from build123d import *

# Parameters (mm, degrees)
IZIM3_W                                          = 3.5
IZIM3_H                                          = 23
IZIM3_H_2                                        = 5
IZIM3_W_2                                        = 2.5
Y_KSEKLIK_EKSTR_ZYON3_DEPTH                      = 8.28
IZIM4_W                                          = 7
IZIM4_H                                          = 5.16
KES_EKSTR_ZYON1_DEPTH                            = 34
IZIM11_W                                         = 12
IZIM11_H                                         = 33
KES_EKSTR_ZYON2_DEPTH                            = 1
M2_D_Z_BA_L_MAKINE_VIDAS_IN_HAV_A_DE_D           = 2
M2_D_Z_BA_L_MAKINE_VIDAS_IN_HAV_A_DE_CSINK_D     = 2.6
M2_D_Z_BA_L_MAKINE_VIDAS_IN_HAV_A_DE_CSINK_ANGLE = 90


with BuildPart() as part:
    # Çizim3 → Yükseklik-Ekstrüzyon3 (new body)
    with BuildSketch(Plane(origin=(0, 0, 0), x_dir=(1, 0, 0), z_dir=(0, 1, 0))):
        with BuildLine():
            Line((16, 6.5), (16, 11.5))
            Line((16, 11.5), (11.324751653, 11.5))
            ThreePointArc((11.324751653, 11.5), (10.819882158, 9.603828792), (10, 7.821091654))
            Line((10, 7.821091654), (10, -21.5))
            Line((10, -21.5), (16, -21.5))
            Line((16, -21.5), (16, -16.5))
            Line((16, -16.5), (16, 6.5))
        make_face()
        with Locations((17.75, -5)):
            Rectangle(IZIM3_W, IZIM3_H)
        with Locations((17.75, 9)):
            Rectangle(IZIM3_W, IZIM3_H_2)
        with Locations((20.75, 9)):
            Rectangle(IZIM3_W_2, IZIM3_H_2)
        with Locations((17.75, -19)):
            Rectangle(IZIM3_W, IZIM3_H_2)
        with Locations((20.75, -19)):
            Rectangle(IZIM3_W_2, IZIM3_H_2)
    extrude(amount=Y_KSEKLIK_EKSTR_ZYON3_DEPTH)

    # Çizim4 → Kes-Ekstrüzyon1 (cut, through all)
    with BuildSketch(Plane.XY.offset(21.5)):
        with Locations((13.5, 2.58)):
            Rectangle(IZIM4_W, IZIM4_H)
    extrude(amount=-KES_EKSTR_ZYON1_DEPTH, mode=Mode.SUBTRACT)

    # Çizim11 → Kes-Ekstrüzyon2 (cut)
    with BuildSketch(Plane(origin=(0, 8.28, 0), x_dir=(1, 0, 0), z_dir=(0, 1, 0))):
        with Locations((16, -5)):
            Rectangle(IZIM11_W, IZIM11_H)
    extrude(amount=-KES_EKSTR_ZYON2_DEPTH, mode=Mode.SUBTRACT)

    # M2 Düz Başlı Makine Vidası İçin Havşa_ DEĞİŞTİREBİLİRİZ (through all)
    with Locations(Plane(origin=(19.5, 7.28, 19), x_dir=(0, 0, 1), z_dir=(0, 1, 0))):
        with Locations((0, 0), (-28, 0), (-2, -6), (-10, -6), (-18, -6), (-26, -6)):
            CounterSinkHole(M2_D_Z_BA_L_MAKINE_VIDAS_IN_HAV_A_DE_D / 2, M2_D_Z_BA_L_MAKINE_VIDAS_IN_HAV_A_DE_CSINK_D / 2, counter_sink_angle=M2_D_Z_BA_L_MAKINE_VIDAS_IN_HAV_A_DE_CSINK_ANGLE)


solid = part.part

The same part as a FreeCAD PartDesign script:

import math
import FreeCAD as App
import Part
import Sketcher
from FreeCAD import Vector
Q = App.Units.Quantity


def add_polygon(sketch, points):
    """Adds a closed chain of lines whose ends are joined by coincident constraints."""
    first, n = sketch.GeometryCount, len(points)
    for a, b in zip(points, points[1:] + points[:1]):
        sketch.addGeometry(Part.LineSegment(App.Vector(*a, 0), App.Vector(*b, 0)), False)
    for i in range(n):
        sketch.addConstraint(Sketcher.Constraint("Coincident", first + i, 2, first + (i + 1) % n, 1))

doc = App.newDocument("Part")
params = doc.addObject("Spreadsheet::Sheet", "Params")
for row, (alias, value) in enumerate([
    ("sketch1_radius", "11.5 mm"),
    ("sketch1_width", "12 mm"),
    ("sketch1_height", "5 mm"),
    ("sketch1_height2", "23 mm"),
    ("sketch1_width2", "2.5 mm"),
    ("pad1_length", "8.28 mm"),
    ("sketch2_width", "7 mm"),
    ("sketch2_height", "5.16 mm"),
    ("sketch3_width", "12 mm"),
    ("sketch3_height", "33 mm"),
    ("pocket2_length", "1 mm"),
    ("sketch4_diameter", "2 mm"),
    ("hole_diameter", "2 mm"),
    ("hole_csink_diameter", "2.6 mm"),
], start=1):
    params.set(f"A{row}", alias)
    params.set(f"B{row}", "=" + value)
    params.setAlias(f"B{row}", alias)

body = doc.addObject("PartDesign::Body", "Body")

# Sketch on XZ plane
sketch1 = body.newObject("Sketcher::SketchObject", "Sketch")
sketch1.AttachmentSupport = (doc.getObject("XZ_Plane"), [""])
sketch1.MapMode = "FlatFace"
sketch1.addGeometry([
    Part.ArcOfCircle(Part.Circle(Vector(0, -13.5, 0), Vector(0, 0, 1), 11.5), math.radians(10.01541), math.radians(29.591846)),  # 0
    Part.LineSegment(Vector(10, -7.821092, 0), Vector(10, 21.5, 0)),  # 1
    Part.LineSegment(Vector(10, 21.5, 0), Vector(22, 21.5, 0)),  # 2
    Part.LineSegment(Vector(22, 21.5, 0), Vector(22, 16.5, 0)),  # 3
    Part.LineSegment(Vector(22, 16.5, 0), Vector(19.5, 16.5, 0)),  # 4
    Part.LineSegment(Vector(19.5, 16.5, 0), Vector(19.5, -6.5, 0)),  # 5
    Part.LineSegment(Vector(19.5, -6.5, 0), Vector(22, -6.5, 0)),  # 6
    Part.LineSegment(Vector(22, -6.5, 0), Vector(22, -11.5, 0)),  # 7
    Part.LineSegment(Vector(22, -11.5, 0), Vector(11.324752, -11.5, 0)),  # 8
], False)
sketch1.addConstraint([
    Sketcher.Constraint("Coincident", 0, 2, 1, 1),
    Sketcher.Constraint("Coincident", 1, 2, 2, 1),
    Sketcher.Constraint("Coincident", 2, 2, 3, 1),
    Sketcher.Constraint("Coincident", 3, 2, 4, 1),
    Sketcher.Constraint("Coincident", 4, 2, 5, 1),
    Sketcher.Constraint("Coincident", 5, 2, 6, 1),
    Sketcher.Constraint("Coincident", 6, 2, 7, 1),
    Sketcher.Constraint("Coincident", 7, 2, 8, 1),
    Sketcher.Constraint("Coincident", 8, 2, 0, 1),
    Sketcher.Constraint("Vertical", 1),
    Sketcher.Constraint("Horizontal", 2),
    Sketcher.Constraint("Vertical", 3),
    Sketcher.Constraint("Horizontal", 4),
    Sketcher.Constraint("Vertical", 5),
    Sketcher.Constraint("Horizontal", 6),
    Sketcher.Constraint("Vertical", 7),
    Sketcher.Constraint("Horizontal", 8),
    Sketcher.Constraint("PointOnObject", 0, 3, -2),
    Sketcher.Constraint("Vertical", 3, 2, 6, 2),
    Sketcher.Constraint("Equal", 3, 7),
    Sketcher.Constraint("Radius", 0, Q("11.5 mm")),
    Sketcher.Constraint("DistanceX", 2, 1, 2, 2, Q("12 mm")),
    Sketcher.Constraint("DistanceY", 3, 2, 3, 1, Q("5 mm")),
    Sketcher.Constraint("DistanceY", 5, 2, 5, 1, Q("23 mm")),
    Sketcher.Constraint("DistanceX", 4, 2, 4, 1, Q("2.5 mm")),
    Sketcher.Constraint("DistanceX", -1, 1, 0, 2, Q("10 mm")),
    Sketcher.Constraint("DistanceY", 0, 3, 1, 2, Q("35 mm")),
    Sketcher.Constraint("DistanceY", 0, 3, -1, 1, Q("13.5 mm")),
])
sketch1.setExpression("Constraints[20]", "Params.sketch1_radius")
sketch1.setExpression("Constraints[21]", "Params.sketch1_width")
sketch1.setExpression("Constraints[22]", "Params.sketch1_height")
sketch1.setExpression("Constraints[23]", "Params.sketch1_height2")
sketch1.setExpression("Constraints[24]", "Params.sketch1_width2")
pad1 = body.newObject("PartDesign::Pad", "Pad")
pad1.Profile = sketch1
pad1.setExpression("Length", "Params.pad1_length")
pad1.Reversed = True

# Sketch on XY plane
sketch2 = body.newObject("Sketcher::SketchObject", "Sketch001")
sketch2.AttachmentSupport = (doc.getObject("XY_Plane"), [""])
sketch2.MapMode = "FlatFace"
sketch2.AttachmentOffset = App.Placement(Vector(0, 0, 21.5), App.Rotation())
add_polygon(sketch2, [(10, 5.16), (10, 0), (17, 0), (17, 5.16)])  # lines 0-3
sketch2.addConstraint([
    Sketcher.Constraint("Vertical", 0),
    Sketcher.Constraint("Horizontal", 1),
    Sketcher.Constraint("Vertical", 2),
    Sketcher.Constraint("Horizontal", 3),
    Sketcher.Constraint("PointOnObject", 0, 2, -1),
    Sketcher.Constraint("DistanceX", 1, 1, 1, 2, Q("7 mm")),
    Sketcher.Constraint("DistanceX", -1, 1, 0, 2, Q("10 mm")),
    Sketcher.Constraint("DistanceY", 0, 2, 0, 1, Q("5.16 mm")),
])
sketch2.setExpression("Constraints[9]", "Params.sketch2_width")
sketch2.setExpression("Constraints[11]", "Params.sketch2_height")
pocket1 = body.newObject("PartDesign::Pocket", "Pocket")
pocket1.Profile = sketch2
pocket1.Type = "ThroughAll"

# Sketch on XZ plane
sketch3 = body.newObject("Sketcher::SketchObject", "Sketch002")
sketch3.AttachmentSupport = (doc.getObject("XZ_Plane"), [""])
sketch3.MapMode = "FlatFace"
sketch3.AttachmentOffset = App.Placement(Vector(0, 0, -8.28), App.Rotation())
add_polygon(sketch3, [(10, -11.5), (10, 21.5), (22, 21.5), (22, -11.5)])  # lines 0-3
sketch3.addConstraint([
    Sketcher.Constraint("Vertical", 0),
    Sketcher.Constraint("Horizontal", 1),
    Sketcher.Constraint("Vertical", 2),
    Sketcher.Constraint("Horizontal", 3),
    Sketcher.Constraint("DistanceX", 1, 1, 1, 2, Q("12 mm")),
    Sketcher.Constraint("DistanceY", 0, 1, 0, 2, Q("33 mm")),
    Sketcher.Constraint("DistanceX", -1, 1, 0, 2, Q("10 mm")),
    Sketcher.Constraint("DistanceY", -1, 1, 0, 2, Q("21.5 mm")),
])
sketch3.setExpression("Constraints[8]", "Params.sketch3_width")
sketch3.setExpression("Constraints[9]", "Params.sketch3_height")
pocket2 = body.newObject("PartDesign::Pocket", "Pocket001")
pocket2.Profile = sketch3
pocket2.setExpression("Length", "Params.pocket2_length")
pocket2.Reversed = True

# Sketch on XZ plane
sketch4 = body.newObject("Sketcher::SketchObject", "Sketch003")
sketch4.AttachmentSupport = (doc.getObject("XZ_Plane"), [""])
sketch4.MapMode = "FlatFace"
sketch4.AttachmentOffset = App.Placement(Vector(0, 0, -7.28), App.Rotation())
sketch4.addGeometry([
    Part.Circle(Vector(19.5, 19, 0), Vector(0, 0, 1), 1),  # 0
    Part.Circle(Vector(19.5, -9, 0), Vector(0, 0, 1), 1),  # 1
    Part.Circle(Vector(13.5, 17, 0), Vector(0, 0, 1), 1),  # 2
    Part.Circle(Vector(13.5, 9, 0), Vector(0, 0, 1), 1),  # 3
    Part.Circle(Vector(13.5, 1, 0), Vector(0, 0, 1), 1),  # 4
    Part.Circle(Vector(13.5, -7, 0), Vector(0, 0, 1), 1),  # 5
], False)
sketch4.addConstraint([
    Sketcher.Constraint("Equal", 0, 1),
    Sketcher.Constraint("Equal", 1, 2),
    Sketcher.Constraint("Equal", 2, 3),
    Sketcher.Constraint("Equal", 3, 4),
    Sketcher.Constraint("Equal", 4, 5),
    Sketcher.Constraint("Vertical", 0, 3, 1, 3),
    Sketcher.Constraint("Vertical", 2, 3, 3, 3),
    Sketcher.Constraint("Vertical", 3, 3, 4, 3),
    Sketcher.Constraint("Vertical", 4, 3, 5, 3),
    Sketcher.Constraint("Diameter", 0, Q("2 mm")),
    Sketcher.Constraint("DistanceY", -1, 1, 0, 3, Q("19 mm")),
    Sketcher.Constraint("DistanceY", 1, 3, -1, 1, Q("9 mm")),
    Sketcher.Constraint("DistanceY", -1, 1, 2, 3, Q("17 mm")),
    Sketcher.Constraint("DistanceY", -1, 1, 3, 3, Q("9 mm")),
    Sketcher.Constraint("DistanceY", -1, 1, 4, 3, Q("1 mm")),
    Sketcher.Constraint("DistanceY", 5, 3, -1, 1, Q("7 mm")),
    Sketcher.Constraint("DistanceX", 2, 3, 0, 3, Q("6 mm")),
    Sketcher.Constraint("DistanceX", -1, 1, 0, 3, Q("19.5 mm")),
])
sketch4.setExpression("Constraints[9]", "Params.sketch4_diameter")
doc.recompute()
hole = body.newObject("PartDesign::Hole", "Hole")
hole.Profile = sketch4
hole.ThreadType = "None"
hole.setExpression("Diameter", "Params.hole_diameter")
hole.DepthType = "ThroughAll"
hole.HoleCutType = "Countersink"
hole.setExpression("HoleCutDiameter", "Params.hole_csink_diameter")
hole.HoleCutCountersinkAngle = 90
hole.Reversed = True

doc.recompute()
